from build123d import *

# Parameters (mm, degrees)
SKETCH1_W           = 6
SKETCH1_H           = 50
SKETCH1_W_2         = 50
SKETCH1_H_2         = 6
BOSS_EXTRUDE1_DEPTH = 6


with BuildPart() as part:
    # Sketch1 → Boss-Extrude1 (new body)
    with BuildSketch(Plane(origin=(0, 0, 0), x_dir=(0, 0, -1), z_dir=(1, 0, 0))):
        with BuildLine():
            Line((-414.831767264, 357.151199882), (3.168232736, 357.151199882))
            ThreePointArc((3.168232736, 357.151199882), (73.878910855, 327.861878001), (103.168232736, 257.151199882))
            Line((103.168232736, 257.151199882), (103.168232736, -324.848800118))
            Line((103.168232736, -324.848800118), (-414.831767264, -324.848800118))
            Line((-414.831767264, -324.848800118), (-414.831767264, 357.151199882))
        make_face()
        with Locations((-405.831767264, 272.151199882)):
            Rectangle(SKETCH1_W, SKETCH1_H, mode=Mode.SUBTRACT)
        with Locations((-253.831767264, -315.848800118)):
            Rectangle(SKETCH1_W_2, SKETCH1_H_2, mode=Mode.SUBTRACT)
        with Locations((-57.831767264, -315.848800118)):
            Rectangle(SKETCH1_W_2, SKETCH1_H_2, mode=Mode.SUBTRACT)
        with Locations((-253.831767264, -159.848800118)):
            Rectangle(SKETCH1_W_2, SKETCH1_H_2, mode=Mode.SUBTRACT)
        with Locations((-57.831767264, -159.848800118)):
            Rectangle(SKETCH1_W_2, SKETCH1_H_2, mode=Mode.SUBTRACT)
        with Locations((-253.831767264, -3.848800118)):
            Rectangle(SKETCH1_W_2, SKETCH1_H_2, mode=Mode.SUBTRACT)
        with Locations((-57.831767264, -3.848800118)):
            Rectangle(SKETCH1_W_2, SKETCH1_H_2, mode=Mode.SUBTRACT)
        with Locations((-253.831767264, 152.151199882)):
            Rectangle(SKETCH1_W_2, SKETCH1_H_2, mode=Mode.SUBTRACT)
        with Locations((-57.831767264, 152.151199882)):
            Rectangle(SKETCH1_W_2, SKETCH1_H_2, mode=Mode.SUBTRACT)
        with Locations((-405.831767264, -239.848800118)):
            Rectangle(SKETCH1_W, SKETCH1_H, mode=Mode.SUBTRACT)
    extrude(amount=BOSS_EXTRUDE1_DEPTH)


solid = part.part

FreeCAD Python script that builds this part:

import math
import FreeCAD as App
import Part
import Sketcher
from FreeCAD import Vector


def add_polygon(sketch, points):
    """Adds a closed chain of lines whose ends are joined by coincident constraints."""
    first, n = sketch.GeometryCount, len(points)
    for a, b in zip(points, points[1:] + points[:1]):
        sketch.addGeometry(Part.LineSegment(App.Vector(*a, 0), App.Vector(*b, 0)), False)
    for i in range(n):
        sketch.addConstraint(Sketcher.Constraint("Coincident", first + i, 2, first + (i + 1) % n, 1))

doc = App.newDocument("Part")
body = doc.addObject("PartDesign::Body", "Body")

# Sketch on YZ plane
sketch1 = doc.addObject("Sketcher::SketchObject", "Sketch")
body.addObject(sketch1)
sketch1.AttachmentSupport = (doc.YZ_Plane, [""])
sketch1.MapMode = "FlatFace"
sketch1.addGeometry(Part.LineSegment(Vector(357.1512, -3.168233, 0), Vector(357.1512, 414.831767, 0)), False)  # 0
sketch1.addGeometry(Part.LineSegment(Vector(357.1512, 414.831767, 0), Vector(-324.8488, 414.831767, 0)), False)  # 1
sketch1.addGeometry(Part.LineSegment(Vector(-324.8488, 414.831767, 0), Vector(-324.8488, -103.168233, 0)), False)  # 2
sketch1.addGeometry(Part.LineSegment(Vector(-324.8488, -103.168233, 0), Vector(257.1512, -103.168233, 0)), False)  # 3
sketch1.addGeometry(Part.ArcOfCircle(Part.Circle(Vector(257.1512, -3.168233, 0), Vector(0, 0, 1), 100), math.radians(-90), math.radians(0)), False)  # 4
add_polygon(sketch1, [(-318.8488, 82.831767), (-312.8488, 82.831767), (-312.8488, 32.831767), (-318.8488, 32.831767)])  # lines 5-8
add_polygon(sketch1, [(-162.8488, 82.831767), (-156.8488, 82.831767), (-156.8488, 32.831767), (-162.8488, 32.831767)])  # lines 9-12
add_polygon(sketch1, [(-318.8488, 278.831767), (-312.8488, 278.831767), (-312.8488, 228.831767), (-318.8488, 228.831767)])  # lines 13-16
add_polygon(sketch1, [(-264.8488, 408.831767), (-214.8488, 408.831767), (-214.8488, 402.831767), (-264.8488, 402.831767)])  # lines 17-20
add_polygon(sketch1, [(-162.8488, 278.831767), (-156.8488, 278.831767), (-156.8488, 228.831767), (-162.8488, 228.831767)])  # lines 21-24
add_polygon(sketch1, [(-6.8488, 82.831767), (-0.8488, 82.831767), (-0.8488, 32.831767), (-6.8488, 32.831767)])  # lines 25-28
add_polygon(sketch1, [(149.1512, 82.831767), (155.1512, 82.831767), (155.1512, 32.831767), (149.1512, 32.831767)])  # lines 29-32
add_polygon(sketch1, [(-6.8488, 278.831767), (-0.8488, 278.831767), (-0.8488, 228.831767), (-6.8488, 228.831767)])  # lines 33-36
add_polygon(sketch1, [(149.1512, 278.831767), (155.1512, 278.831767), (155.1512, 228.831767), (149.1512, 228.831767)])  # lines 37-40
add_polygon(sketch1, [(247.1512, 408.831767), (297.1512, 408.831767), (297.1512, 402.831767), (247.1512, 402.831767)])  # lines 41-44
sketch1.addConstraint([
    Sketcher.Constraint("Coincident", 0, 2, 1, 1),
    Sketcher.Constraint("Coincident", 1, 2, 2, 1),
    Sketcher.Constraint("Coincident", 2, 2, 3, 1),
    Sketcher.Constraint("Tangent", 3, 2, 4, 1),
    Sketcher.Constraint("Tangent", 4, 2, 0, 1),
    Sketcher.Constraint("Vertical", 0),
    Sketcher.Constraint("Horizontal", 1),
    Sketcher.Constraint("Vertical", 2),
    Sketcher.Constraint("Horizontal", 3),
    Sketcher.Constraint("Horizontal", 5),
    Sketcher.Constraint("Vertical", 6),
    Sketcher.Constraint("Horizontal", 7),
    Sketcher.Constraint("Vertical", 8),
    Sketcher.Constraint("Horizontal", 9),
    Sketcher.Constraint("Vertical", 10),
    Sketcher.Constraint("Horizontal", 11),
    Sketcher.Constraint("Vertical", 12),
    Sketcher.Constraint("Horizontal", 13),
    Sketcher.Constraint("Vertical", 14),
    Sketcher.Constraint("Horizontal", 15),
    Sketcher.Constraint("Vertical", 16),
    Sketcher.Constraint("Horizontal", 17),
    Sketcher.Constraint("Vertical", 18),
    Sketcher.Constraint("Horizontal", 19),
    Sketcher.Constraint("Vertical", 20),
    Sketcher.Constraint("Horizontal", 21),
    Sketcher.Constraint("Vertical", 22),
    Sketcher.Constraint("Horizontal", 23),
    Sketcher.Constraint("Vertical", 24),
    Sketcher.Constraint("Horizontal", 25),
    Sketcher.Constraint("Vertical", 26),
    Sketcher.Constraint("Horizontal", 27),
    Sketcher.Constraint("Vertical", 28),
    Sketcher.Constraint("Horizontal", 29),
    Sketcher.Constraint("Vertical", 30),
    Sketcher.Constraint("Horizontal", 31),
    Sketcher.Constraint("Vertical", 32),
    Sketcher.Constraint("Horizontal", 33),
    Sketcher.Constraint("Vertical", 34),
    Sketcher.Constraint("Horizontal", 35),
    Sketcher.Constraint("Vertical", 36),
    Sketcher.Constraint("Horizontal", 37),
    Sketcher.Constraint("Vertical", 38),
    Sketcher.Constraint("Horizontal", 39),
    Sketcher.Constraint("Vertical", 40),
    Sketcher.Constraint("Horizontal", 41),
    Sketcher.Constraint("Vertical", 42),
    Sketcher.Constraint("Horizontal", 43),
    Sketcher.Constraint("Vertical", 44),
    Sketcher.Constraint("Horizontal", 8, 2, 9, 2),
    Sketcher.Constraint("Horizontal", 7, 2, 10, 2),
    Sketcher.Constraint("Horizontal", 16, 2, 21, 2),
    Sketcher.Constraint("Horizontal", 15, 2, 22, 2),
    Sketcher.Constraint("Horizontal", 12, 2, 25, 2),
    Sketcher.Constraint("Horizontal", 11, 2, 26, 2),
    Sketcher.Constraint("Horizontal", 28, 2, 29, 2),
    Sketcher.Constraint("Horizontal", 27, 2, 30, 2),
    Sketcher.Constraint("Horizontal", 24, 2, 33, 2),
    Sketcher.Constraint("Horizontal", 23, 2, 34, 2),
    Sketcher.Constraint("Horizontal", 36, 2, 37, 2),
    Sketcher.Constraint("Horizontal", 35, 2, 38, 2),
    Sketcher.Constraint("Horizontal", 20, 2, 41, 2),
    Sketcher.Constraint("Horizontal", 19, 2, 42, 2),
    Sketcher.Constraint("Vertical", 6, 2, 13, 2),
    Sketcher.Constraint("Vertical", 8, 2, 15, 2),
    Sketcher.Constraint("Vertical", 10, 2, 21, 2),
    Sketcher.Constraint("Vertical", 12, 2, 23, 2),
    Sketcher.Constraint("Vertical", 26, 2, 33, 2),
    Sketcher.Constraint("Vertical", 28, 2, 35, 2),
    Sketcher.Constraint("Vertical", 30, 2, 37, 2),
    Sketcher.Constraint("Vertical", 32, 2, 39, 2),
    Sketcher.Constraint("Equal", 7, 9),
    Sketcher.Constraint("Equal", 23, 25),
    Sketcher.Constraint("Equal", 27, 29),
    Sketcher.Constraint("Equal", 19, 41),
    Sketcher.Constraint("Equal", 43, 6),
    Sketcher.Constraint("Equal", 12, 14),
    Sketcher.Constraint("Equal", 39, 18),
    Sketcher.Constraint("Radius", 4, 100.0),
    Sketcher.Constraint("DistanceX", 1, 2, 1, 1, 682.0),
    Sketcher.Constraint("DistanceX", 5, 1, 5, 2, 6.0),
    Sketcher.Constraint("DistanceX", 17, 1, 17, 2, 50.0),
    Sketcher.Constraint("DistanceY", 0, 1, 0, 2, 418.0),
    Sketcher.Constraint("DistanceX", 2, 2, 5, 2, 12.0),
    Sketcher.Constraint("DistanceY", 2, 2, 5, 2, 186.0),
    Sketcher.Constraint("DistanceX", 5, 2, 9, 2, 156.0),
    Sketcher.Constraint("DistanceY", 13, 2, 1, 2, 136.0),
    Sketcher.Constraint("DistanceX", 1, 2, 17, 2, 110.0),
    Sketcher.Constraint("DistanceY", 17, 2, 1, 2, 6.0),
    Sketcher.Constraint("DistanceX", 9, 2, 25, 2, 156.0),
    Sketcher.Constraint("DistanceX", 29, 2, 4, 3, 102.0),
    Sketcher.Constraint("DistanceX", 41, 2, 0, 2, 60.0),
    Sketcher.Constraint("DistanceX", -1, 1, 4, 3, 257.1512),
    Sketcher.Constraint("DistanceY", 4, 3, -1, 1, 3.168233),
])
pad1 = doc.addObject("PartDesign::Pad", "Pad")
body.addObject(pad1)
pad1.Profile = sketch1
pad1.Length = 6

doc.recompute()
